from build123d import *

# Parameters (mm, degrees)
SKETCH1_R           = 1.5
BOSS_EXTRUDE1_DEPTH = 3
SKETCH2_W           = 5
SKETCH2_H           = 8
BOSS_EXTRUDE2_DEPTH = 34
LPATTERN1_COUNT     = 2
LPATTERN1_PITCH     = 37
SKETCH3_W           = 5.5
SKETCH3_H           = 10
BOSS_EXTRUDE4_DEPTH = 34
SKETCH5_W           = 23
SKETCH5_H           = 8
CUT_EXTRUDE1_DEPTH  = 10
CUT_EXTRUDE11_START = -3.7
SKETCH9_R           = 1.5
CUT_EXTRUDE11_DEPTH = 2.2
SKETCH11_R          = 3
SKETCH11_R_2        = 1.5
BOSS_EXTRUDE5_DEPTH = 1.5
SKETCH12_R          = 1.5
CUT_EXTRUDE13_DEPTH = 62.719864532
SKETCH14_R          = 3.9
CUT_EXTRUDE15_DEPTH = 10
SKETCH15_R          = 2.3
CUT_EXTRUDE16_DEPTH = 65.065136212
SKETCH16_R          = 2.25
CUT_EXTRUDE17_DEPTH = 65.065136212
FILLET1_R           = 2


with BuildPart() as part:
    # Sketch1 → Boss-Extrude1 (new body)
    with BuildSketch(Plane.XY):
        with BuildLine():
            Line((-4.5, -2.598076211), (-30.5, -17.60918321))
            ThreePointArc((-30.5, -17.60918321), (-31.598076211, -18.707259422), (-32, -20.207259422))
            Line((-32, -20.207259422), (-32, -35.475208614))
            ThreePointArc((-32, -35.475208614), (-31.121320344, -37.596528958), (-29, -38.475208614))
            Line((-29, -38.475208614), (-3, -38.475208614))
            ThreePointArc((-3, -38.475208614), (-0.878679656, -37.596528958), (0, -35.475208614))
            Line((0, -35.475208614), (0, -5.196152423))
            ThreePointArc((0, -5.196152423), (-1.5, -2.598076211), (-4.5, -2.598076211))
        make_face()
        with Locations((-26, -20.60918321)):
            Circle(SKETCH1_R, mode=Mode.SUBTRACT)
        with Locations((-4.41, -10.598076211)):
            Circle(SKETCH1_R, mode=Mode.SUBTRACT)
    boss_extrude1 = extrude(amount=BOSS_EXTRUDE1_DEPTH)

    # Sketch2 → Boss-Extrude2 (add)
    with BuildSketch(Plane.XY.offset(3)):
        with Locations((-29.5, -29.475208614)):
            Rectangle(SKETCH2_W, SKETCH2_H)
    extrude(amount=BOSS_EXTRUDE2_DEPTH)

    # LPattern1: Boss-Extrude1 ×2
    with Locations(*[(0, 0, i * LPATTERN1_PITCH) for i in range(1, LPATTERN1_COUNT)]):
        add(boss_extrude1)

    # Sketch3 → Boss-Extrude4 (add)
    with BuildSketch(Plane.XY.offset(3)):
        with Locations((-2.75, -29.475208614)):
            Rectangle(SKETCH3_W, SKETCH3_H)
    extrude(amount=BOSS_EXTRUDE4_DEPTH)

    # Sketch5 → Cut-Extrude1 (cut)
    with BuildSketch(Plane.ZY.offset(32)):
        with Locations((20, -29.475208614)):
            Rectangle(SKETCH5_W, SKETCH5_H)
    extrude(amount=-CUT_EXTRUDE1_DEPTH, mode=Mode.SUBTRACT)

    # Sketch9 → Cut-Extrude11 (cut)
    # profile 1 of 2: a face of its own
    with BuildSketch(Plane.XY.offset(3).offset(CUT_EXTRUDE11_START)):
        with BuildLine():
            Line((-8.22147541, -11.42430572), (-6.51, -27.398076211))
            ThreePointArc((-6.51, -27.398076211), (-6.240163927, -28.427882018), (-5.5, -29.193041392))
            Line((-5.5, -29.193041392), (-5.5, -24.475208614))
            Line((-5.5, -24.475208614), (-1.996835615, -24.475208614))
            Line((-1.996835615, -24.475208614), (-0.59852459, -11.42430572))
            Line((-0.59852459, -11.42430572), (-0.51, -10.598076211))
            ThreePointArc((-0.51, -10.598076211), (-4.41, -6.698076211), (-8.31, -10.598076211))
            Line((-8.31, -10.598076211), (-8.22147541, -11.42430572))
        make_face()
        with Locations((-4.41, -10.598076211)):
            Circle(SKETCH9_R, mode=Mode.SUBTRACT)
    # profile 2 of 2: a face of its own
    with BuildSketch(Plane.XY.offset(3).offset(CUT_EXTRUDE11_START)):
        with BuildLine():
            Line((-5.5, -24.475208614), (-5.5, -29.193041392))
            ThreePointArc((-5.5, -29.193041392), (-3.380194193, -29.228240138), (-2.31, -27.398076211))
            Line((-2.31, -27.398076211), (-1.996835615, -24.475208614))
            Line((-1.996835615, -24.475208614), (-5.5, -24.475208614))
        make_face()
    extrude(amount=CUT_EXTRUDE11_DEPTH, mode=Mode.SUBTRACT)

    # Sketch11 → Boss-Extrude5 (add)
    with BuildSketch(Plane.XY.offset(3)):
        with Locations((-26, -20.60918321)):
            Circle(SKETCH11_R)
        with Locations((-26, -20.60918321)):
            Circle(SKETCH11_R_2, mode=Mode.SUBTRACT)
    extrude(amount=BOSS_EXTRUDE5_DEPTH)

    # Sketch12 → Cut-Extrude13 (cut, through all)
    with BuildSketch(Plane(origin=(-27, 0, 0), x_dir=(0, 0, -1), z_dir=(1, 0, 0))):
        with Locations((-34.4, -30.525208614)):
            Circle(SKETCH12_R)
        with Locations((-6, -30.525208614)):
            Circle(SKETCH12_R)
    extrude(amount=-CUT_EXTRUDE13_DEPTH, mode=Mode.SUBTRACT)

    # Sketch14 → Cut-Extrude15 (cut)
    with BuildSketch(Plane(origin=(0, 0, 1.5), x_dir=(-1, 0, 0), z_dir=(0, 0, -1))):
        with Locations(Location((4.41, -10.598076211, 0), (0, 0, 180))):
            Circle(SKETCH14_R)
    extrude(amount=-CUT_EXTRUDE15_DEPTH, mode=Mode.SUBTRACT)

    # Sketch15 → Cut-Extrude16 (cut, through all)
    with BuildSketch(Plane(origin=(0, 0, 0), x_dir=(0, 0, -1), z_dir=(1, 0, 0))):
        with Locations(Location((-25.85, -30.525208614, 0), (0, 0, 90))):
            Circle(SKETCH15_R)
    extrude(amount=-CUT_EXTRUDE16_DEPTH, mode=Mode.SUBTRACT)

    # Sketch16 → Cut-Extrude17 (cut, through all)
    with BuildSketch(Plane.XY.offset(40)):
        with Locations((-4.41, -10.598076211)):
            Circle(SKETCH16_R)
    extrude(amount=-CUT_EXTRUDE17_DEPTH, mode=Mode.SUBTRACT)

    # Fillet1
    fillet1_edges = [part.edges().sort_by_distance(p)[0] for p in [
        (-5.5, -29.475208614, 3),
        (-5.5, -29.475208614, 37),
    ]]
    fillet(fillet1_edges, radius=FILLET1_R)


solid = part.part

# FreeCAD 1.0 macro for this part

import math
import FreeCAD as App
import Part
import Sketcher
from FreeCAD import Vector
Q = App.Units.Quantity


def edges_at(feature, points):
    """Names of the edges that pass closest to the given points."""
    edges = feature.Shape.Edges
    near = lambda p: min(range(len(edges)), key=lambda i: edges[i].distToShape(Part.Vertex(*p))[0])
    return sorted({f"Edge{near(p) + 1}" for p in points})

doc = App.newDocument("Part")
body = doc.addObject("PartDesign::Body", "Body")

# Sketch on XY plane
sketch1 = body.newObject("Sketcher::SketchObject", "Sketch")
sketch1.AttachmentSupport = (doc.getObject("XY_Plane"), [""])
sketch1.MapMode = "FlatFace"
sketch1.addGeometry([
    Part.LineSegment(Vector(-4.5, -2.6, 0), Vector(-30.5, -17.6, 0)),  # 0
    Part.ArcOfCircle(Part.Circle(Vector(-29, -20.2, 0), Vector(0, 0, 1), 3), math.radians(120), math.radians(180)),  # 1
    Part.LineSegment(Vector(-32, -20.2, 0), Vector(-32, -35.5, 0)),  # 2
    Part.ArcOfCircle(Part.Circle(Vector(-29, -35.5, 0), Vector(0, 0, 1), 3), math.radians(180), math.radians(270)),  # 3
    Part.LineSegment(Vector(-29, -38.5, 0), Vector(-3, -38.5, 0)),  # 4
    Part.ArcOfCircle(Part.Circle(Vector(-3, -35.5, 0), Vector(0, 0, 1), 3), math.radians(-90), math.radians(0)),  # 5
    Part.LineSegment(Vector(0, -35.5, 0), Vector(0, -5.2, 0)),  # 6
    Part.ArcOfCircle(Part.Circle(Vector(-3, -5.2, 0), Vector(0, 0, 1), 3), math.radians(0), math.radians(120)),  # 7
    Part.Circle(Vector(-26, -20.6, 0), Vector(0, 0, 1), 1.5),  # 8
    Part.Circle(Vector(-4.4, -10.6, 0), Vector(0, 0, 1), 1.5),  # 9
], False)
sketch1.addConstraint([
    Sketcher.Constraint("Tangent", 0, 2, 1, 1),
    Sketcher.Constraint("Tangent", 1, 2, 2, 1),
    Sketcher.Constraint("Tangent", 2, 2, 3, 1),
    Sketcher.Constraint("Tangent", 3, 2, 4, 1),
    Sketcher.Constraint("Tangent", 4, 2, 5, 1),
    Sketcher.Constraint("Tangent", 5, 2, 6, 1),
    Sketcher.Constraint("Tangent", 6, 2, 7, 1),
    Sketcher.Constraint("Tangent", 7, 2, 0, 1),
    Sketcher.Constraint("Vertical", 2),
    Sketcher.Constraint("Horizontal", 4),
    Sketcher.Constraint("Vertical", 6),
    Sketcher.Constraint("Equal", 1, 3),
    Sketcher.Constraint("Equal", 3, 5),
    Sketcher.Constraint("Equal", 5, 7),
    Sketcher.Constraint("Equal", 8, 9),
    Sketcher.Constraint("PointOnObject", 5, 2, -2),
    Sketcher.Constraint("Diameter", 8, Q("3 mm")),
    Sketcher.Constraint("Radius", 1, Q("3 mm")),
    Sketcher.Constraint("DistanceX", 4, 1, 4, 2, Q("26 mm")),
    Sketcher.Constraint("Angle", 0, Q("-150 deg")),
    Sketcher.Constraint("DistanceX", 8, 3, -1, 1, Q("26 mm")),
    Sketcher.Constraint("DistanceY", 8, 3, 0, 2, Q("3 mm")),
    Sketcher.Constraint("DistanceY", 9, 3, 7, 2, Q("8 mm")),
    Sketcher.Constraint("DistanceX", 9, 3, -1, 1, Q("4.41 mm")),
    Sketcher.Constraint("DistanceY", 2, 2, 2, 1, Q("15.267949 mm")),
    Sketcher.Constraint("DistanceY", 1, 3, -1, 1, Q("20.207259 mm")),
])
pad1 = body.newObject("PartDesign::Pad", "Pad")
pad1.Profile = sketch1
pad1.Length = 3

# Sketch on XY plane
sketch2 = body.newObject("Sketcher::SketchObject", "Sketch001")
sketch2.AttachmentSupport = (doc.getObject("XY_Plane"), [""])
sketch2.MapMode = "FlatFace"
sketch2.AttachmentOffset = App.Placement(Vector(0, 0, 3), App.Rotation())
sketch2.addGeometry([
    Part.LineSegment(Vector(-32, -25, 0), Vector(-32, -33, 0)),
    Part.LineSegment(Vector(-32, -33, 0), Vector(-27, -33, 0)),
    Part.LineSegment(Vector(-27, -33, 0), Vector(-27, -25, 0)),
    Part.LineSegment(Vector(-27, -25, 0), Vector(-32, -25, 0)),
], False)
sketch2.addConstraint([
    Sketcher.Constraint("Coincident", 0, 2, 1, 1),
    Sketcher.Constraint("Coincident", 1, 2, 2, 1),
    Sketcher.Constraint("Coincident", 2, 2, 3, 1),
    Sketcher.Constraint("Coincident", 3, 2, 0, 1),
    Sketcher.Constraint("Vertical", 0),
    Sketcher.Constraint("Horizontal", 1),
    Sketcher.Constraint("Vertical", 2),
    Sketcher.Constraint("Horizontal", 3),
    Sketcher.Constraint("DistanceX", 1, 1, 1, 2, Q("5 mm")),
    Sketcher.Constraint("DistanceY", 0, 2, 0, 1, Q("8 mm")),
    Sketcher.Constraint("DistanceX", 0, 2, -1, 1, Q("32 mm")),
    Sketcher.Constraint("DistanceY", 0, 2, -1, 1, Q("33.475209 mm")),
])
pad2 = body.newObject("PartDesign::Pad", "Pad001")
pad2.Profile = sketch2
pad2.Length = 34
doc.recompute()

linearpattern = body.newObject("PartDesign::LinearPattern", "LinearPattern")
linearpattern.Originals = [pad1]
linearpattern.Direction = (doc.getObject("Z_Axis"), [""])
linearpattern.Mode = "offset"
linearpattern.Offset = 37
linearpattern.Occurrences = 2
body.Tip = linearpattern

# Sketch on XY plane
sketch3 = body.newObject("Sketcher::SketchObject", "Sketch002")
sketch3.AttachmentSupport = (doc.getObject("XY_Plane"), [""])
sketch3.MapMode = "FlatFace"
sketch3.AttachmentOffset = App.Placement(Vector(0, 0, 3), App.Rotation())
sketch3.addGeometry([
    Part.LineSegment(Vector(-6, -24, 0), Vector(-6, -34, 0)),
    Part.LineSegment(Vector(-6, -34, 0), Vector(0, -34, 0)),
    Part.LineSegment(Vector(0, -34, 0), Vector(0, -24, 0)),
    Part.LineSegment(Vector(0, -24, 0), Vector(-6, -24, 0)),
], False)
sketch3.addConstraint([
    Sketcher.Constraint("Coincident", 0, 2, 1, 1),
    Sketcher.Constraint("Coincident", 1, 2, 2, 1),
    Sketcher.Constraint("Coincident", 2, 2, 3, 1),
    Sketcher.Constraint("Coincident", 3, 2, 0, 1),
    Sketcher.Constraint("Vertical", 0),
    Sketcher.Constraint("Horizontal", 1),
    Sketcher.Constraint("Vertical", 2),
    Sketcher.Constraint("Horizontal", 3),
    Sketcher.Constraint("PointOnObject", 1, 2, -2),
    Sketcher.Constraint("DistanceY", 0, 2, 0, 1, Q("10 mm")),
    Sketcher.Constraint("DistanceX", 1, 1, 1, 2, Q("5.5 mm")),
    Sketcher.Constraint("DistanceY", 0, 2, -1, 1, Q("34.475209 mm")),
])
pad3 = body.newObject("PartDesign::Pad", "Pad002")
pad3.Profile = sketch3
pad3.Length = 34

# Sketch on YZ plane
sketch4 = body.newObject("Sketcher::SketchObject", "Sketch003")
sketch4.AttachmentSupport = (doc.getObject("YZ_Plane"), [""])
sketch4.MapMode = "FlatFace"
sketch4.AttachmentOffset = App.Placement(Vector(0, 0, -32), App.Rotation())
sketch4.addGeometry([
    Part.LineSegment(Vector(-25, 8, 0), Vector(-33, 8, 0)),
    Part.LineSegment(Vector(-33, 8, 0), Vector(-33, 32, 0)),
    Part.LineSegment(Vector(-33, 32, 0), Vector(-25, 32, 0)),
    Part.LineSegment(Vector(-25, 32, 0), Vector(-25, 8, 0)),
], False)
sketch4.addConstraint([
    Sketcher.Constraint("Coincident", 0, 2, 1, 1),
    Sketcher.Constraint("Coincident", 1, 2, 2, 1),
    Sketcher.Constraint("Coincident", 2, 2, 3, 1),
    Sketcher.Constraint("Coincident", 3, 2, 0, 1),
    Sketcher.Constraint("Horizontal", 0),
    Sketcher.Constraint("Vertical", 1),
    Sketcher.Constraint("Horizontal", 2),
    Sketcher.Constraint("Vertical", 3),
    Sketcher.Constraint("DistanceX", 0, 2, 0, 1, Q("8 mm")),
    Sketcher.Constraint("DistanceY", 1, 1, 1, 2, Q("23 mm")),
    Sketcher.Constraint("DistanceY", -1, 1, 0, 2, Q("8.5 mm")),
    Sketcher.Constraint("DistanceX", 0, 2, -1, 1, Q("33.475209 mm")),
])
pocket1 = body.newObject("PartDesign::Pocket", "Pocket")
pocket1.Profile = sketch4
pocket1.Length = 10
pocket1.Reversed = True

# Sketch on XY plane
sketch5 = body.newObject("Sketcher::SketchObject", "Sketch004")
sketch5.AttachmentSupport = (doc.getObject("XY_Plane"), [""])
sketch5.MapMode = "FlatFace"
sketch5.AttachmentOffset = App.Placement(Vector(0, 0, -0.7), App.Rotation())
sketch5.addGeometry([
    Part.LineSegment(Vector(-8.2, -11.4, 0), Vector(-6.5, -27.4, 0)),  # 0
    Part.ArcOfCircle(Part.Circle(Vector(-4.4, -27.4, 0), Vector(0, 0, 1), 2.1), math.radians(180), math.radians(239)),  # 1
    Part.ArcOfCircle(Part.Circle(Vector(-4.4, -27.4, 0), Vector(0, 0, 1), 2.1), math.radians(-121), math.radians(0)),  # 2
    Part.LineSegment(Vector(-2.3, -27.4, 0), Vector(-2, -24.5, 0)),  # 3
    Part.LineSegment(Vector(-2, -24.5, 0), Vector(-0.6, -11.4, 0)),  # 4
    Part.LineSegment(Vector(-0.6, -11.4, 0), Vector(-0.5, -10.6, 0)),  # 5
    Part.ArcOfCircle(Part.Circle(Vector(-4.4, -10.6, 0), Vector(0, 0, 1), 3.9), math.radians(0), math.radians(180)),  # 6
    Part.LineSegment(Vector(-8.3, -10.6, 0), Vector(-8.2, -11.4, 0)),  # 7
    Part.Circle(Vector(-4.4, -10.6, 0), Vector(0, 0, 1), 1.5),  # 8
], False)
sketch5.addConstraint([
    Sketcher.Constraint("Coincident", 0, 2, 1, 1),
    Sketcher.Constraint("Tangent", 1, 2, 2, 1),
    Sketcher.Constraint("Coincident", 2, 2, 3, 1),
    Sketcher.Constraint("Coincident", 3, 2, 4, 1),
    Sketcher.Constraint("Coincident", 4, 2, 5, 1),
    Sketcher.Constraint("Coincident", 5, 2, 6, 1),
    Sketcher.Constraint("Coincident", 6, 2, 7, 1),
    Sketcher.Constraint("Coincident", 7, 2, 0, 1),
    Sketcher.Constraint("Coincident", 8, 3, 6, 3),
    Sketcher.Constraint("Equal", 1, 2),
    Sketcher.Constraint("Parallel", 3, 4),
    Sketcher.Constraint("Parallel", 4, 5),
    Sketcher.Constraint("Parallel", 0, 7),
    Sketcher.Constraint("Horizontal", 2, 3, 0, 2),
    Sketcher.Constraint("Horizontal", 0, 2, 2, 2),
    Sketcher.Constraint("Horizontal", 8, 3, 5, 2),
    Sketcher.Constraint("Horizontal", 5, 2, 6, 2),
    Sketcher.Constraint("Horizontal", 4, 2, 7, 2),
    Sketcher.Constraint("Vertical", 2, 3, 6, 3),
    Sketcher.Constraint("Diameter", 8, Q("3 mm")),
    Sketcher.Constraint("Radius", 1, Q("2.1 mm")),
    Sketcher.Constraint("Radius", 6, Q("3.9 mm")),
    Sketcher.Constraint("DistanceX", 1, 2, -1, 1, Q("5.5 mm")),
    Sketcher.Constraint("DistanceY", 1, 3, 6, 3, Q("16.8 mm")),
    Sketcher.Constraint("DistanceX", 1, 3, -1, 1, Q("4.41 mm")),
    Sketcher.Constraint("Distance", 4, Q("13.125599 mm")),
    Sketcher.Constraint("Distance", 5, Q("0.830958 mm")),
    Sketcher.Constraint("DistanceY", 1, 2, -1, 1, Q("29.193041 mm")),
])
pocket2 = body.newObject("PartDesign::Pocket", "Pocket001")
pocket2.Profile = sketch5
pocket2.Length = 2.2
pocket2.Reversed = True

# Sketch on XY plane
sketch6 = body.newObject("Sketcher::SketchObject", "Sketch005")
sketch6.AttachmentSupport = (doc.getObject("XY_Plane"), [""])
sketch6.MapMode = "FlatFace"
sketch6.AttachmentOffset = App.Placement(Vector(0, 0, 3), App.Rotation())
sketch6.addGeometry([
    Part.Circle(Vector(-26, -20.6, 0), Vector(0, 0, 1), 3),
    Part.Circle(Vector(-26, -20.6, 0), Vector(0, 0, 1), 1.5),
], False)
sketch6.addConstraint([
    Sketcher.Constraint("Coincident", 1, 3, 0, 3),
    Sketcher.Constraint("Diameter", 0, Q("6 mm")),
    Sketcher.Constraint("Diameter", 1, Q("3 mm")),
    Sketcher.Constraint("DistanceX", 0, 3, -1, 1, Q("26 mm")),
    Sketcher.Constraint("DistanceY", 0, 3, -1, 1, Q("20.609183 mm")),
])
pad4 = body.newObject("PartDesign::Pad", "Pad003")
pad4.Profile = sketch6
pad4.Length = 1.5

# Sketch on YZ plane
sketch7 = body.newObject("Sketcher::SketchObject", "Sketch006")
sketch7.AttachmentSupport = (doc.getObject("YZ_Plane"), [""])
sketch7.MapMode = "FlatFace"
sketch7.AttachmentOffset = App.Placement(Vector(0, 0, -27), App.Rotation())
sketch7.addGeometry([
    Part.Circle(Vector(-30.5, 34.4, 0), Vector(0, 0, 1), 1.5),
    Part.Circle(Vector(-30.5, 6, 0), Vector(0, 0, 1), 1.5),
], False)
sketch7.addConstraint([
    Sketcher.Constraint("Equal", 0, 1),
    Sketcher.Constraint("Vertical", 0, 3, 1, 3),
    Sketcher.Constraint("Diameter", 0, Q("3 mm")),
    Sketcher.Constraint("DistanceY", -1, 1, 1, 3, Q("6 mm")),
    Sketcher.Constraint("DistanceY", -1, 1, 0, 3, Q("34.4 mm")),
    Sketcher.Constraint("DistanceX", 0, 3, -1, 1, Q("30.525209 mm")),
])
pocket3 = body.newObject("PartDesign::Pocket", "Pocket002")
pocket3.Profile = sketch7
pocket3.Type = "ThroughAll"

# Sketch on XY plane
sketch8 = body.newObject("Sketcher::SketchObject", "Sketch007")
sketch8.AttachmentSupport = (doc.getObject("XY_Plane"), [""])
sketch8.MapMode = "FlatFace"
sketch8.AttachmentOffset = App.Placement(Vector(0, 0, 1.5), App.Rotation())
sketch8.addGeometry(Part.Circle(Vector(-4.4, -10.6, 0), Vector(0, 0, 1), 3.9), False)
sketch8.addConstraint([
    Sketcher.Constraint("Diameter", 0, Q("7.8 mm")),
    Sketcher.Constraint("DistanceX", 0, 3, -1, 1, Q("4.41 mm")),
    Sketcher.Constraint("DistanceY", 0, 3, -1, 1, Q("10.598076 mm")),
])
pocket4 = body.newObject("PartDesign::Pocket", "Pocket003")
pocket4.Profile = sketch8
pocket4.Length = 10
pocket4.Reversed = True

# Sketch on YZ plane
sketch9 = body.newObject("Sketcher::SketchObject", "Sketch008")
sketch9.AttachmentSupport = (doc.getObject("YZ_Plane"), [""])
sketch9.MapMode = "FlatFace"
sketch9.addGeometry(Part.Circle(Vector(-30.5, 25.9, 0), Vector(0, 0, 1), 2.3), False)
sketch9.addConstraint([
    Sketcher.Constraint("Diameter", 0, Q("4.6 mm")),
    Sketcher.Constraint("DistanceY", -1, 1, 0, 3, Q("25.85 mm")),
    Sketcher.Constraint("DistanceX", 0, 3, -1, 1, Q("30.525209 mm")),
])
pocket5 = body.newObject("PartDesign::Pocket", "Pocket004")
pocket5.Profile = sketch9
pocket5.Type = "ThroughAll"

# Sketch on XY plane
sketch10 = body.newObject("Sketcher::SketchObject", "Sketch009")
sketch10.AttachmentSupport = (doc.getObject("XY_Plane"), [""])
sketch10.MapMode = "FlatFace"
sketch10.AttachmentOffset = App.Placement(Vector(0, 0, 40), App.Rotation())
sketch10.addGeometry(Part.Circle(Vector(-4.4, -10.6, 0), Vector(0, 0, 1), 2.2), False)
sketch10.addConstraint([
    Sketcher.Constraint("Diameter", 0, Q("4.5 mm")),
    Sketcher.Constraint("DistanceX", 0, 3, -1, 1, Q("4.41 mm")),
    Sketcher.Constraint("DistanceY", 0, 3, -1, 1, Q("10.598076 mm")),
])
pocket6 = body.newObject("PartDesign::Pocket", "Pocket005")
pocket6.Profile = sketch10
pocket6.Type = "ThroughAll"
doc.recompute()

fillet = body.newObject("PartDesign::Fillet", "Fillet")
fillet.Base = (pocket6, edges_at(pocket6, [(-5.5, -29.475, 3), (-5.5, -29.475, 37)]))
fillet.Radius = 2

doc.recompute()
